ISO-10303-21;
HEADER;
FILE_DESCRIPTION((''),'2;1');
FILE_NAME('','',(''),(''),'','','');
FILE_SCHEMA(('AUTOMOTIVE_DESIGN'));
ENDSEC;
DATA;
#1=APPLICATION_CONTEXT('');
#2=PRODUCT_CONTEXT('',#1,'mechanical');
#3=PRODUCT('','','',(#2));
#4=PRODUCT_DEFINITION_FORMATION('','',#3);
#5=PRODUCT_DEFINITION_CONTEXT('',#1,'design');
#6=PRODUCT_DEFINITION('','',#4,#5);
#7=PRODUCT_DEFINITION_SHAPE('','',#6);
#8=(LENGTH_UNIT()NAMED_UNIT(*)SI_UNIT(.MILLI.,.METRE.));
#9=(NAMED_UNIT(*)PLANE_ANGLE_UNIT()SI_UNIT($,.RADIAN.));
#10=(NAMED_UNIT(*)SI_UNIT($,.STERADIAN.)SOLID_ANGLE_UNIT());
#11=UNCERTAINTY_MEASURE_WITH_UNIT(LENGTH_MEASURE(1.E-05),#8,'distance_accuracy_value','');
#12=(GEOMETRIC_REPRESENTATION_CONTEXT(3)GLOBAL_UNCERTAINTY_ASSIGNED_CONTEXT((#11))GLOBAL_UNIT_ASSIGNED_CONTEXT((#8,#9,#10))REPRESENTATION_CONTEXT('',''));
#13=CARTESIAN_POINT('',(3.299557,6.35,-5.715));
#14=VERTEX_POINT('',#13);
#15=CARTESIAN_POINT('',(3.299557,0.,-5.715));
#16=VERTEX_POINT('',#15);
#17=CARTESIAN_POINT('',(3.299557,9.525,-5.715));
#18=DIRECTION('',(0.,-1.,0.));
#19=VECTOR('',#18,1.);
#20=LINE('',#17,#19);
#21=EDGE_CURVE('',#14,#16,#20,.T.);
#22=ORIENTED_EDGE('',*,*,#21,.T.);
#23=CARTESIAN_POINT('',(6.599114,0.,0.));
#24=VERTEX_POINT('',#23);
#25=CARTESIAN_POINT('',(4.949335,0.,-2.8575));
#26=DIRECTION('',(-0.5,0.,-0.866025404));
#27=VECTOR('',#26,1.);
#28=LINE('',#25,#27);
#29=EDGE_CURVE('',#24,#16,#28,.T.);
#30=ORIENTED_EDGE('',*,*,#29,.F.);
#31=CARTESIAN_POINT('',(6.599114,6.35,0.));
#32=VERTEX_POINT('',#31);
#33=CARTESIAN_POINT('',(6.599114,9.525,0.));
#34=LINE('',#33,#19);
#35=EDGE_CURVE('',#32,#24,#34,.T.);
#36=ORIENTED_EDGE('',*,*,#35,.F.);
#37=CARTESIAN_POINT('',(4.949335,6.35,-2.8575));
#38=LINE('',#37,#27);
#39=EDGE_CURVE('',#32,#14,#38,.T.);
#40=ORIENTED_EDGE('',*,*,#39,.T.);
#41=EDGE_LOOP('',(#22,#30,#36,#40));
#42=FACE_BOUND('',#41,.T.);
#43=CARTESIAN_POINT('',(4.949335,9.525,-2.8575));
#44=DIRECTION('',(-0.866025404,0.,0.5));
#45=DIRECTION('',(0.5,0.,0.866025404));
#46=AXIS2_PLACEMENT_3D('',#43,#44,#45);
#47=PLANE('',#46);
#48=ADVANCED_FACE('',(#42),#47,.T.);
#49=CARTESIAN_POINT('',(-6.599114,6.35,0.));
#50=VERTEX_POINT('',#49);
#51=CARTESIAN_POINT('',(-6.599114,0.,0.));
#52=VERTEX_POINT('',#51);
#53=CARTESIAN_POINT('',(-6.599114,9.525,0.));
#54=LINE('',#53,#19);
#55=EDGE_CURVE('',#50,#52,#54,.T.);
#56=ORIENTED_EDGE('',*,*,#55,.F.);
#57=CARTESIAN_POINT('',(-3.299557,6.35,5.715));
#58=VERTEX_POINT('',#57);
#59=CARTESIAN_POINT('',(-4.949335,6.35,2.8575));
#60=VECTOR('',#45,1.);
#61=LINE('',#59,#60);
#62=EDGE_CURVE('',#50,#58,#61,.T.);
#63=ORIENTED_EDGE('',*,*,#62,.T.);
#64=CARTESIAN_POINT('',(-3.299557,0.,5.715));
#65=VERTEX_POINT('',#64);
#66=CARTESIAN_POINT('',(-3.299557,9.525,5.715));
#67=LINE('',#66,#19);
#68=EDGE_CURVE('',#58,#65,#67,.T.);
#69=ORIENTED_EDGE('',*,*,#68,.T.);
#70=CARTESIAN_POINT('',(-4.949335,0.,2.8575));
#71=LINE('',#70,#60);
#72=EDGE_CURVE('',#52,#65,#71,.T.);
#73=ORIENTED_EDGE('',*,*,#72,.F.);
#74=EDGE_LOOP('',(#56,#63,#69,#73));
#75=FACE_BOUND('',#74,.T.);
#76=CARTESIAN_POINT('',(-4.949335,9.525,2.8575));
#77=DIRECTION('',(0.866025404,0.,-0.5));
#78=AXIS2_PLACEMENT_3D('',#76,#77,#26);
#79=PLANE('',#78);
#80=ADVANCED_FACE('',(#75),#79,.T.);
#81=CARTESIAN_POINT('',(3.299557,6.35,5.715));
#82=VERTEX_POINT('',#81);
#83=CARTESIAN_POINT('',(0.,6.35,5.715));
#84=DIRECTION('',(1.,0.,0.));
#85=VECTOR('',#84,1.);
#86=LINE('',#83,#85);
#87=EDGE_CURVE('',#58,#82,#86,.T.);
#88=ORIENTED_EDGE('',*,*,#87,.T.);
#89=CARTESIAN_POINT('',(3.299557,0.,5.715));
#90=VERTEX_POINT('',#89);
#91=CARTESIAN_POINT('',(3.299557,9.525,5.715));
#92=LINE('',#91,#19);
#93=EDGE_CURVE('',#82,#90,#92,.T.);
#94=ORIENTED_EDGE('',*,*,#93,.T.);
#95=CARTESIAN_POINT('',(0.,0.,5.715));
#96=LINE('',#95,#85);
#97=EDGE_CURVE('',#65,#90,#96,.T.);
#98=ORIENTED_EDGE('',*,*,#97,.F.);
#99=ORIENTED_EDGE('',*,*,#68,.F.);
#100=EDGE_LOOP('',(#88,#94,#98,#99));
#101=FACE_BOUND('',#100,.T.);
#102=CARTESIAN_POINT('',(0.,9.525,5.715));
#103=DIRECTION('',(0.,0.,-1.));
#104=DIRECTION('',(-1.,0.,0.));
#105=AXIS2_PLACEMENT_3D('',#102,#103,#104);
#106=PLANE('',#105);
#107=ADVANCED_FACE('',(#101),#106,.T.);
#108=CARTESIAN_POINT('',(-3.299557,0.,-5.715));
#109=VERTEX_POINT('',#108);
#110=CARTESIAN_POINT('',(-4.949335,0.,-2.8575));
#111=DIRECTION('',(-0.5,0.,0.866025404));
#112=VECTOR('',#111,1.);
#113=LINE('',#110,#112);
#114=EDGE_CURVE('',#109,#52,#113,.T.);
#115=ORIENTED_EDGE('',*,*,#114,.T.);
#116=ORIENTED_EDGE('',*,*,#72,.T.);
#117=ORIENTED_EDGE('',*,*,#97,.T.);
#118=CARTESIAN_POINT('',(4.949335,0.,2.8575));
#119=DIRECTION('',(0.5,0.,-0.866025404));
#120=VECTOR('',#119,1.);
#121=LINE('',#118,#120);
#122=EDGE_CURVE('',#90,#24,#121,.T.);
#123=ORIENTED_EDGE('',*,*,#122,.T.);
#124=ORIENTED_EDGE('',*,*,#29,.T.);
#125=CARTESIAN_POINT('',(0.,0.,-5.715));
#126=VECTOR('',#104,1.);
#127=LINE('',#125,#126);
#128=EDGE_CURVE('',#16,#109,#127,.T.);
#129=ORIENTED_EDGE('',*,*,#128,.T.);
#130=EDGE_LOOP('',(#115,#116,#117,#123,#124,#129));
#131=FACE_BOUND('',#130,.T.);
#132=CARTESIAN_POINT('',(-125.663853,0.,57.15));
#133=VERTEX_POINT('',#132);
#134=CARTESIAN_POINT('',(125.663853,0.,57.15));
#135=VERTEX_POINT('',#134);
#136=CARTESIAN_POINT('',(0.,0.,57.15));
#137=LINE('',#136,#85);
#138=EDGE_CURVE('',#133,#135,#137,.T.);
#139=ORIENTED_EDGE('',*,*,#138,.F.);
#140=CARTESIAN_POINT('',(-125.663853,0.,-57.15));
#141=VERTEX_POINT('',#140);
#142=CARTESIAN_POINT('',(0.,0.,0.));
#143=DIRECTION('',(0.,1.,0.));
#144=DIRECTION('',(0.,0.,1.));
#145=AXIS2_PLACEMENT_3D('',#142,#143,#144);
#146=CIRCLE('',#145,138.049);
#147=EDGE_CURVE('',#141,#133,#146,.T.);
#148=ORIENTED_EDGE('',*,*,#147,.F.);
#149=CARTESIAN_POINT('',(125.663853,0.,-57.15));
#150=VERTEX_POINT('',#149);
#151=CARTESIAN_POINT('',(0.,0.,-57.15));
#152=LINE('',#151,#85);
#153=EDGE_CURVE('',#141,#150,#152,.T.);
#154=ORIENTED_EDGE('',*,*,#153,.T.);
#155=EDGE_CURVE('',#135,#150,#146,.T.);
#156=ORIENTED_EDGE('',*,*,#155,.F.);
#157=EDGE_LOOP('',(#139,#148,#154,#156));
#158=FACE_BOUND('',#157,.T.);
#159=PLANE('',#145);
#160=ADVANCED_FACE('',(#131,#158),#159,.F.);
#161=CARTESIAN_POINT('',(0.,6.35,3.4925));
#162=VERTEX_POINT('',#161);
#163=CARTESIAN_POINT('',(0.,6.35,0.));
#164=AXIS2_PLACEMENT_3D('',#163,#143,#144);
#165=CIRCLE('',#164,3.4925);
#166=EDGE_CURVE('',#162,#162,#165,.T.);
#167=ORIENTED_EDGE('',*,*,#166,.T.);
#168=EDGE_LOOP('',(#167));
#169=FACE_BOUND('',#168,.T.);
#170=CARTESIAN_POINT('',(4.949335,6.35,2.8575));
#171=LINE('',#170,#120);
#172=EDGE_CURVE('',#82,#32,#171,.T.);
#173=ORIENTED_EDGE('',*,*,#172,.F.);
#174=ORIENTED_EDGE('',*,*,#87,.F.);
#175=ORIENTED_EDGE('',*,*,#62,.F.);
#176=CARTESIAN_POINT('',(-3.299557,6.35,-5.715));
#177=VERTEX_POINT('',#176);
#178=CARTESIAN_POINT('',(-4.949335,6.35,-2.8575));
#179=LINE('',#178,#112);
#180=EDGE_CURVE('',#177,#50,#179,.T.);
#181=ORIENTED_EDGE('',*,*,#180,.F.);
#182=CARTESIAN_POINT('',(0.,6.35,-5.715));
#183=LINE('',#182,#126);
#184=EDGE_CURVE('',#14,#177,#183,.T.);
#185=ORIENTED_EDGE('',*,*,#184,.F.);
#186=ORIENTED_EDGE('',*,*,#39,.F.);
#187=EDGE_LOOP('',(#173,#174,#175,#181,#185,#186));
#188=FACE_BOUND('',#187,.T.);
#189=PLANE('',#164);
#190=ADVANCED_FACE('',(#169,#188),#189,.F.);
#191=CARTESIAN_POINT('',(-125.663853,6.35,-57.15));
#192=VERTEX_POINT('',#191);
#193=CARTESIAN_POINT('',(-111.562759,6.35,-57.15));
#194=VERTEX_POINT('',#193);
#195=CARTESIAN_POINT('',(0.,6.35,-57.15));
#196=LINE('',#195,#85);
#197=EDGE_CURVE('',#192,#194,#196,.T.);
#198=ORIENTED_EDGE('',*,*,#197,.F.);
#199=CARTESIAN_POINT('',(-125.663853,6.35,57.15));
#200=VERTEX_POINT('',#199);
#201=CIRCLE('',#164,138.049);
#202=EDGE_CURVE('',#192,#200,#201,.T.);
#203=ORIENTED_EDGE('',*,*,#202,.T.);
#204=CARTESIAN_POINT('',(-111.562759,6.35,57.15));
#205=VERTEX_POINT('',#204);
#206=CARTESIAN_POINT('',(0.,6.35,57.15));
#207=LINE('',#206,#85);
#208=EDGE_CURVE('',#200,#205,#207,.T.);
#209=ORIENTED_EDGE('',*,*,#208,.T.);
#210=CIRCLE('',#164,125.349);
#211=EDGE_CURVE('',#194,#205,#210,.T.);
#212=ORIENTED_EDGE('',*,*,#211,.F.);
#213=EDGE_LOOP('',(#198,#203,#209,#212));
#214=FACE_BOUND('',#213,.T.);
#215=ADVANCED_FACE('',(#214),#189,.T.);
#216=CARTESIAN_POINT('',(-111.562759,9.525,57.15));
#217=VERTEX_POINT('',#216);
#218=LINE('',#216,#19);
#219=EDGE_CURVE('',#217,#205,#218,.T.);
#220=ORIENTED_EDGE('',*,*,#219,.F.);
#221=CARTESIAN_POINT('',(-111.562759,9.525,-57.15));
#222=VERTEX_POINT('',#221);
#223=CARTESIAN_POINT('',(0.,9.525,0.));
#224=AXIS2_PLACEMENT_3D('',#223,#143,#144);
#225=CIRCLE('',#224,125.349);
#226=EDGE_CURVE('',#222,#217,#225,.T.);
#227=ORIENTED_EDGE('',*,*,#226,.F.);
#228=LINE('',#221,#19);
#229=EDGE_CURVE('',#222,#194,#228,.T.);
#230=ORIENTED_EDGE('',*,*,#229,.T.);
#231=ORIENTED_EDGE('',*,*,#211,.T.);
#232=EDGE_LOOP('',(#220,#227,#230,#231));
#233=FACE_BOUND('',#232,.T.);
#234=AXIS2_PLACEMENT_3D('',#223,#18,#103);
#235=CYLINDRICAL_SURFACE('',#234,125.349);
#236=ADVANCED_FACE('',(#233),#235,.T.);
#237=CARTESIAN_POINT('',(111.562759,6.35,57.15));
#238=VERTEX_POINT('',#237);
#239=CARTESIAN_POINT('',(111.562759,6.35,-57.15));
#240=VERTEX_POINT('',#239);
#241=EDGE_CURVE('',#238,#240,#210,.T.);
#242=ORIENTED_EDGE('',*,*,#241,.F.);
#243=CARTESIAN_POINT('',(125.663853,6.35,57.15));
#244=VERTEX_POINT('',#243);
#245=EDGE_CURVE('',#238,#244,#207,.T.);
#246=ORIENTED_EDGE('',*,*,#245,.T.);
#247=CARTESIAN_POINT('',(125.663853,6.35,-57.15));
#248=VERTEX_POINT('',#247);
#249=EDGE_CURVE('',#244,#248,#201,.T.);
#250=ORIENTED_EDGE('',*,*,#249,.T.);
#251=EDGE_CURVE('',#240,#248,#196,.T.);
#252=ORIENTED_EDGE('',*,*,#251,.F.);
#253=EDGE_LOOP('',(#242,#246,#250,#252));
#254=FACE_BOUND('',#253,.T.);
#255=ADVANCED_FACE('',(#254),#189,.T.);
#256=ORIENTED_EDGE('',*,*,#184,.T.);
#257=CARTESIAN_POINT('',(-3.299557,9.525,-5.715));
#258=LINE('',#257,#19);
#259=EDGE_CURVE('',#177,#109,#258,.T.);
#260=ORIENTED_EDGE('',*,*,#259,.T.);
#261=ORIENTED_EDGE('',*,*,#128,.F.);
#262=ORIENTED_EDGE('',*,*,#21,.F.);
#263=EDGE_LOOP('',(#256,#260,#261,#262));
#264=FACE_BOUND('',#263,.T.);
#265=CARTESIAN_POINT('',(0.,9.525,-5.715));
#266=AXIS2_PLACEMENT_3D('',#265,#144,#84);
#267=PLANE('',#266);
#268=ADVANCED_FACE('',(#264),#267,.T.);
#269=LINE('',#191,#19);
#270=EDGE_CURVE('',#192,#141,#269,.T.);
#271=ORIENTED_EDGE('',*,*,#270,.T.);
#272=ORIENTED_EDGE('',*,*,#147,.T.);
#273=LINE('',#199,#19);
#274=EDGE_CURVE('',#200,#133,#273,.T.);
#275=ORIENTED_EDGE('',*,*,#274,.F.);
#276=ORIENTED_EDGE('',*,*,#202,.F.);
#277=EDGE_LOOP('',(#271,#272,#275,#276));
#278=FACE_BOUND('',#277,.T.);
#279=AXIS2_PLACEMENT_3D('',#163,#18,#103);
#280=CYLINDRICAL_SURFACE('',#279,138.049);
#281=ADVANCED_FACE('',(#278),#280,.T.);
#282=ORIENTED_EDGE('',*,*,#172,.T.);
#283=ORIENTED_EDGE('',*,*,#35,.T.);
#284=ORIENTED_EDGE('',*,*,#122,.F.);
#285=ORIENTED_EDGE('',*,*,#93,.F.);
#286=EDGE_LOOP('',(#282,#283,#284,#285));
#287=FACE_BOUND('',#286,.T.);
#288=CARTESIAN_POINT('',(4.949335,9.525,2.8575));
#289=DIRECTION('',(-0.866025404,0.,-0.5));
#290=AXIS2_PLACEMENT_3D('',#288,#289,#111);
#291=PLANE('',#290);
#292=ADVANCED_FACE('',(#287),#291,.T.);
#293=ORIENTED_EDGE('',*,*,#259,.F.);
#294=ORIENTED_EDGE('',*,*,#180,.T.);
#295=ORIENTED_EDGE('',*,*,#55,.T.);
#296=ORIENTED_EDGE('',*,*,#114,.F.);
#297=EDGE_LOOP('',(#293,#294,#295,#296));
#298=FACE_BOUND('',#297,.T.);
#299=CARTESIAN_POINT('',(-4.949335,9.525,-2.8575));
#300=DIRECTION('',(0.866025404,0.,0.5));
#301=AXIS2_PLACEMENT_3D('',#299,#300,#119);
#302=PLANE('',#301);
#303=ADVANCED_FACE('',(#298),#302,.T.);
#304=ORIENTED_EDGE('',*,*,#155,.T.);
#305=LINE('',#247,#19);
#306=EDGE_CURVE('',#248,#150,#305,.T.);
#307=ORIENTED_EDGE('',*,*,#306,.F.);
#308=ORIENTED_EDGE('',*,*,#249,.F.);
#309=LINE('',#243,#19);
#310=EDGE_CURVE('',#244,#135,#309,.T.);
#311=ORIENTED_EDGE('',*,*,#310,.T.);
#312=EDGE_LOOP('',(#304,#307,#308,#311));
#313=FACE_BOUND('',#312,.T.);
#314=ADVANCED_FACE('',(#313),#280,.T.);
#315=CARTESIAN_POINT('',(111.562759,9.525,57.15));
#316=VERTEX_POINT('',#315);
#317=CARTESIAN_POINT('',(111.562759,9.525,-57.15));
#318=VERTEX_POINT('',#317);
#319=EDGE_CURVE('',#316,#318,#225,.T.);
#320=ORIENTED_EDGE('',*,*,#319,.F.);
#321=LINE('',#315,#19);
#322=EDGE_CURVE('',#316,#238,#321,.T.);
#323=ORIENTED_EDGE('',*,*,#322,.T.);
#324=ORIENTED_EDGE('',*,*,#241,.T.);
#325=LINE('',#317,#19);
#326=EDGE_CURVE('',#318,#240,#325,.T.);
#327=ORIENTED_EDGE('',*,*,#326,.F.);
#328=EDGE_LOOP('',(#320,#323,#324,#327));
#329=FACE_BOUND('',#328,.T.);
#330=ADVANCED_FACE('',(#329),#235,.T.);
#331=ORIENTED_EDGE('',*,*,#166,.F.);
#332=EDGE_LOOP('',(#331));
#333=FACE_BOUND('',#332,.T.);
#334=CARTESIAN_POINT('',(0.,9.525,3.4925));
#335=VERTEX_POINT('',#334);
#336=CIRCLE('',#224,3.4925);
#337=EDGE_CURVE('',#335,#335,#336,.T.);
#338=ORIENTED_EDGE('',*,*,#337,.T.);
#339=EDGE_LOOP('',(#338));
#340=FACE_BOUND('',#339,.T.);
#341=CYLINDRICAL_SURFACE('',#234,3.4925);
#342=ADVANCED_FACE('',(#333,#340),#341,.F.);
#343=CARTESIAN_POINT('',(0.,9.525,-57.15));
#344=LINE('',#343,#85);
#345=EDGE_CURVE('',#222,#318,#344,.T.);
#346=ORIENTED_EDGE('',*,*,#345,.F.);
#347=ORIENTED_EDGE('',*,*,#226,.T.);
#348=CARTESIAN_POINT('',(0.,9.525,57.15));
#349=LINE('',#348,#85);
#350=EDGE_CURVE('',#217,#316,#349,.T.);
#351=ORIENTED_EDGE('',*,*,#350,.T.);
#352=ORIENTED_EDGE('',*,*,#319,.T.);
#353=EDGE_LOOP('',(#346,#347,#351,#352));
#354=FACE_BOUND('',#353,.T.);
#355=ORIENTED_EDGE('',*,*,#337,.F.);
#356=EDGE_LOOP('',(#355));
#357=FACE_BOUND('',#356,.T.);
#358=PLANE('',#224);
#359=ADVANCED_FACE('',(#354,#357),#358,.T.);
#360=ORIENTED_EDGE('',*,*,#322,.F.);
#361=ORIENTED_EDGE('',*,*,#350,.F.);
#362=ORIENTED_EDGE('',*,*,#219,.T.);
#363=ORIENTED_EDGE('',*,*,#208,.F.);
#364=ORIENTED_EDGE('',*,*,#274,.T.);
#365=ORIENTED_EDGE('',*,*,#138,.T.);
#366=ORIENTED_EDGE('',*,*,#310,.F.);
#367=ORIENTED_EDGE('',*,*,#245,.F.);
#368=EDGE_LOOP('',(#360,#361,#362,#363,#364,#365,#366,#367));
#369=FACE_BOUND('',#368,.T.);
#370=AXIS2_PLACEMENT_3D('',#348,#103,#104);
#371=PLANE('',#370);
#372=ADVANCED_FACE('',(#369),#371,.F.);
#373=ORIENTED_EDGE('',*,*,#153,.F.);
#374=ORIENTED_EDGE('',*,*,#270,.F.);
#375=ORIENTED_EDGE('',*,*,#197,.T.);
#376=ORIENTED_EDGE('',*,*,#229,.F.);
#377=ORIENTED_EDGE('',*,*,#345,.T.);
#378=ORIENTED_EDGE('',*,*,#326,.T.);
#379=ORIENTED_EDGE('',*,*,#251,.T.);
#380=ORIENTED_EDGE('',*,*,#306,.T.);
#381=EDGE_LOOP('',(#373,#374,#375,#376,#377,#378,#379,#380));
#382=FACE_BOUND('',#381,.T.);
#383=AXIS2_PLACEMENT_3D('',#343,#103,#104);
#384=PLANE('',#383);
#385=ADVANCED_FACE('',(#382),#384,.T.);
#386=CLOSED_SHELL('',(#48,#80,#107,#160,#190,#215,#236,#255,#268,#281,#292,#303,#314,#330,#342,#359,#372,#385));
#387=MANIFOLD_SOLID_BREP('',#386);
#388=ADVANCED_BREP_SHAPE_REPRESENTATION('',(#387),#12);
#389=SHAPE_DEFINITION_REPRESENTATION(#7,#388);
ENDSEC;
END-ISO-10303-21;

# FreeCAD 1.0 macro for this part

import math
import FreeCAD as App
import Part
import Sketcher
from FreeCAD import Vector
Q = App.Units.Quantity

doc = App.newDocument("Part")
body = doc.addObject("PartDesign::Body", "Body")

# Sketch on XZ plane
sketch1 = doc.addObject("Sketcher::SketchObject", "Sketch")
body.addObject(sketch1)
sketch1.AttachmentSupport = (doc.XZ_Plane, [""])
sketch1.MapMode = "FlatFace"
sketch1.addGeometry(Part.LineSegment(Vector(112, -57, 0), Vector(-112, -57, 0)), False)
sketch1.addGeometry(Part.ArcOfCircle(Part.Circle(Vector(0, 0, 0), Vector(0, 0, 1), 125), math.radians(153), math.radians(207)), False)
sketch1.addGeometry(Part.LineSegment(Vector(-112, 57, 0), Vector(112, 57, 0)), False)
sketch1.addGeometry(Part.ArcOfCircle(Part.Circle(Vector(0, 0, 0), Vector(0, 0, 1), 125), math.radians(-27), math.radians(27)), False)
sketch1.addGeometry(Part.LineSegment(Vector(3, 6, 0), Vector(-3, 6, 0)), False)
sketch1.addGeometry(Part.LineSegment(Vector(-3, 6, 0), Vector(-7, 0, 0)), False)
sketch1.addGeometry(Part.LineSegment(Vector(-7, 0, 0), Vector(-3, -6, 0)), False)
sketch1.addGeometry(Part.LineSegment(Vector(-3, -6, 0), Vector(3, -6, 0)), False)
sketch1.addGeometry(Part.LineSegment(Vector(3, -6, 0), Vector(7, 0, 0)), False)
sketch1.addGeometry(Part.LineSegment(Vector(7, 0, 0), Vector(3, 6, 0)), False)
sketch1.addConstraint(Sketcher.Constraint("Coincident", 0, 2, 1, 2))
sketch1.addConstraint(Sketcher.Constraint("Coincident", 1, 1, 2, 1))
sketch1.addConstraint(Sketcher.Constraint("Coincident", 2, 2, 3, 2))
sketch1.addConstraint(Sketcher.Constraint("Coincident", 3, 1, 0, 1))
sketch1.addConstraint(Sketcher.Constraint("Coincident", 4, 2, 5, 1))
sketch1.addConstraint(Sketcher.Constraint("Coincident", 5, 2, 6, 1))
sketch1.addConstraint(Sketcher.Constraint("Coincident", 6, 2, 7, 1))
sketch1.addConstraint(Sketcher.Constraint("Coincident", 7, 2, 8, 1))
sketch1.addConstraint(Sketcher.Constraint("Coincident", 8, 2, 9, 1))
sketch1.addConstraint(Sketcher.Constraint("Coincident", 9, 2, 4, 1))
sketch1.addConstraint(Sketcher.Constraint("Horizontal", 0))
sketch1.addConstraint(Sketcher.Constraint("Horizontal", 2))
sketch1.addConstraint(Sketcher.Constraint("Horizontal", 4))
sketch1.addConstraint(Sketcher.Constraint("Horizontal", 7))
sketch1.addConstraint(Sketcher.Constraint("Coincident", 1, 3, -1, 1))
sketch1.addConstraint(Sketcher.Constraint("Coincident", 3, 3, -1, 1))
sketch1.addConstraint(Sketcher.Constraint("Equal", 1, 3))
sketch1.addConstraint(Sketcher.Constraint("Symmetric", 4, 2, 7, 2, -1, 1))
sketch1.addConstraint(Sketcher.Constraint("Symmetric", 5, 2, 8, 2, -1, 1))
sketch1.addConstraint(Sketcher.Constraint("PointOnObject", 5, 2, -1))
sketch1.addConstraint(Sketcher.Constraint("Parallel", 6, 9))
sketch1.addConstraint(Sketcher.Constraint("Vertical", 0, 2, 1, 1))
sketch1.addConstraint(Sketcher.Constraint("Vertical", 4, 2, 6, 2))
sketch1.addConstraint(Sketcher.Constraint("Angle", 5, Q("-120 deg")))
sketch1.addConstraint(Sketcher.Constraint("Radius", 1, Q("4.935 in")))
sketch1.addConstraint(Sketcher.Constraint("DistanceY", 0, 2, 1, 1, Q("4.5 in")))
sketch1.addConstraint(Sketcher.Constraint("DistanceY", 6, 2, 4, 2, Q("0.45 in")))
sketch1.addConstraint(Sketcher.Constraint("DistanceX", 4, 2, 4, 1, 6.599114))
pad1 = doc.addObject("PartDesign::Pad", "Pad")
body.addObject(pad1)
pad1.Profile = sketch1
pad1.Length = Q("0.375 in")
pad1.Reversed = True

# Sketch on XZ plane
sketch2 = doc.addObject("Sketcher::SketchObject", "Sketch001")
body.addObject(sketch2)
sketch2.AttachmentSupport = (doc.XZ_Plane, [""])
sketch2.MapMode = "FlatFace"
sketch2.addGeometry(Part.LineSegment(Vector(126, -57, 0), Vector(112, -57, 0)), False)
sketch2.addGeometry(Part.ArcOfCircle(Part.Circle(Vector(0, 0, 0), Vector(0, 0, 1), 125), math.radians(-27), math.radians(27)), False)
sketch2.addGeometry(Part.LineSegment(Vector(112, 57, 0), Vector(126, 57, 0)), False)
sketch2.addGeometry(Part.ArcOfCircle(Part.Circle(Vector(0, 0, 0), Vector(0, 0, 1), 138), math.radians(-24), math.radians(24)), False)
sketch2.addGeometry(Part.LineSegment(Vector(-112, -57, 0), Vector(-126, -57, 0)), False)
sketch2.addGeometry(Part.ArcOfCircle(Part.Circle(Vector(0, 0, 0), Vector(0, 0, 1), 138), math.radians(156), math.radians(204)), False)
sketch2.addGeometry(Part.LineSegment(Vector(-126, 57, 0), Vector(-112, 57, 0)), False)
sketch2.addGeometry(Part.ArcOfCircle(Part.Circle(Vector(0, 0, 0), Vector(0, 0, 1), 125), math.radians(153), math.radians(207)), False)
sketch2.addConstraint(Sketcher.Constraint("Coincident", 0, 2, 1, 1))
sketch2.addConstraint(Sketcher.Constraint("Coincident", 1, 2, 2, 1))
sketch2.addConstraint(Sketcher.Constraint("Coincident", 2, 2, 3, 2))
sketch2.addConstraint(Sketcher.Constraint("Coincident", 3, 1, 0, 1))
sketch2.addConstraint(Sketcher.Constraint("Coincident", 4, 2, 5, 2))
sketch2.addConstraint(Sketcher.Constraint("Coincident", 5, 1, 6, 1))
sketch2.addConstraint(Sketcher.Constraint("Coincident", 6, 2, 7, 1))
sketch2.addConstraint(Sketcher.Constraint("Coincident", 7, 2, 4, 1))
sketch2.addConstraint(Sketcher.Constraint("Horizontal", 0))
sketch2.addConstraint(Sketcher.Constraint("Horizontal", 2))
sketch2.addConstraint(Sketcher.Constraint("Horizontal", 4))
sketch2.addConstraint(Sketcher.Constraint("Horizontal", 6))
sketch2.addConstraint(Sketcher.Constraint("Coincident", 1, 3, -1, 1))
sketch2.addConstraint(Sketcher.Constraint("Coincident", 3, 3, -1, 1))
sketch2.addConstraint(Sketcher.Constraint("Coincident", 5, 3, -1, 1))
sketch2.addConstraint(Sketcher.Constraint("Coincident", 7, 3, -1, 1))
sketch2.addConstraint(Sketcher.Constraint("Equal", 3, 5))
sketch2.addConstraint(Sketcher.Constraint("Equal", 1, 7))
sketch2.addConstraint(Sketcher.Constraint("Horizontal", 3, 1, 4, 2))
sketch2.addConstraint(Sketcher.Constraint("Horizontal", 2, 2, 5, 1))
sketch2.addConstraint(Sketcher.Constraint("Vertical", 0, 2, 1, 2))
sketch2.addConstraint(Sketcher.Constraint("Radius", 1, Q("4.935 in")))
sketch2.addConstraint(Sketcher.Constraint("Radius", 3, Q("5.435 in")))
sketch2.addConstraint(Sketcher.Constraint("DistanceY", 0, 2, 1, 2, Q("4.5 in")))
pad2 = doc.addObject("PartDesign::Pad", "Pad001")
body.addObject(pad2)
pad2.Profile = sketch2
pad2.Length = Q("0.25 in")
pad2.Reversed = True

# Sketch on XZ plane
sketch3 = doc.addObject("Sketcher::SketchObject", "Sketch002")
body.addObject(sketch3)
sketch3.AttachmentSupport = (doc.XZ_Plane, [""])
sketch3.MapMode = "FlatFace"
sketch3.AttachmentOffset = App.Placement(Vector(0, 0, -0.25 * 25.4), App.Rotation())
sketch3.addGeometry(Part.LineSegment(Vector(3.3, -5.7, 0), Vector(-3.3, -5.7, 0)), False)
sketch3.addGeometry(Part.LineSegment(Vector(-3.3, -5.7, 0), Vector(-6.6, 0, 0)), False)
sketch3.addGeometry(Part.LineSegment(Vector(-6.6, 0, 0), Vector(-3.3, 5.7, 0)), False)
sketch3.addGeometry(Part.LineSegment(Vector(-3.3, 5.7, 0), Vector(3.3, 5.7, 0)), False)
sketch3.addGeometry(Part.LineSegment(Vector(3.3, 5.7, 0), Vector(6.6, 0, 0)), False)
sketch3.addGeometry(Part.LineSegment(Vector(6.6, 0, 0), Vector(3.3, -5.7, 0)), False)
sketch3.addGeometry(Part.Circle(Vector(0, 0, 0), Vector(0, 0, 1), 3.5), False)
sketch3.addConstraint(Sketcher.Constraint("Coincident", 0, 2, 1, 1))
sketch3.addConstraint(Sketcher.Constraint("Coincident", 1, 2, 2, 1))
sketch3.addConstraint(Sketcher.Constraint("Coincident", 2, 2, 3, 1))
sketch3.addConstraint(Sketcher.Constraint("Coincident", 3, 2, 4, 1))
sketch3.addConstraint(Sketcher.Constraint("Coincident", 4, 2, 5, 1))
sketch3.addConstraint(Sketcher.Constraint("Coincident", 5, 2, 0, 1))
sketch3.addConstraint(Sketcher.Constraint("Horizontal", 0))
sketch3.addConstraint(Sketcher.Constraint("Horizontal", 3))
sketch3.addConstraint(Sketcher.Constraint("Coincident", 6, 3, -1, 1))
sketch3.addConstraint(Sketcher.Constraint("Symmetric", 0, 2, 3, 2, -1, 1))
sketch3.addConstraint(Sketcher.Constraint("Symmetric", 1, 2, 4, 2, -1, 1))
sketch3.addConstraint(Sketcher.Constraint("PointOnObject", 1, 2, -1))
sketch3.addConstraint(Sketcher.Constraint("Parallel", 2, 5))
sketch3.addConstraint(Sketcher.Constraint("Vertical", 0, 2, 2, 2))
sketch3.addConstraint(Sketcher.Constraint("Diameter", 6, Q("0.275 in")))
sketch3.addConstraint(Sketcher.Constraint("Angle", 1, Q("120 deg")))
sketch3.addConstraint(Sketcher.Constraint("DistanceY", 0, 2, 2, 2, Q("0.45 in")))
sketch3.addConstraint(Sketcher.Constraint("DistanceX", 0, 2, 0, 1, 6.599114))
pad3 = doc.addObject("PartDesign::Pad", "Pad002")
body.addObject(pad3)
pad3.Profile = sketch3
pad3.Length = Q("0.125 in")
pad3.Reversed = True

doc.recompute()
